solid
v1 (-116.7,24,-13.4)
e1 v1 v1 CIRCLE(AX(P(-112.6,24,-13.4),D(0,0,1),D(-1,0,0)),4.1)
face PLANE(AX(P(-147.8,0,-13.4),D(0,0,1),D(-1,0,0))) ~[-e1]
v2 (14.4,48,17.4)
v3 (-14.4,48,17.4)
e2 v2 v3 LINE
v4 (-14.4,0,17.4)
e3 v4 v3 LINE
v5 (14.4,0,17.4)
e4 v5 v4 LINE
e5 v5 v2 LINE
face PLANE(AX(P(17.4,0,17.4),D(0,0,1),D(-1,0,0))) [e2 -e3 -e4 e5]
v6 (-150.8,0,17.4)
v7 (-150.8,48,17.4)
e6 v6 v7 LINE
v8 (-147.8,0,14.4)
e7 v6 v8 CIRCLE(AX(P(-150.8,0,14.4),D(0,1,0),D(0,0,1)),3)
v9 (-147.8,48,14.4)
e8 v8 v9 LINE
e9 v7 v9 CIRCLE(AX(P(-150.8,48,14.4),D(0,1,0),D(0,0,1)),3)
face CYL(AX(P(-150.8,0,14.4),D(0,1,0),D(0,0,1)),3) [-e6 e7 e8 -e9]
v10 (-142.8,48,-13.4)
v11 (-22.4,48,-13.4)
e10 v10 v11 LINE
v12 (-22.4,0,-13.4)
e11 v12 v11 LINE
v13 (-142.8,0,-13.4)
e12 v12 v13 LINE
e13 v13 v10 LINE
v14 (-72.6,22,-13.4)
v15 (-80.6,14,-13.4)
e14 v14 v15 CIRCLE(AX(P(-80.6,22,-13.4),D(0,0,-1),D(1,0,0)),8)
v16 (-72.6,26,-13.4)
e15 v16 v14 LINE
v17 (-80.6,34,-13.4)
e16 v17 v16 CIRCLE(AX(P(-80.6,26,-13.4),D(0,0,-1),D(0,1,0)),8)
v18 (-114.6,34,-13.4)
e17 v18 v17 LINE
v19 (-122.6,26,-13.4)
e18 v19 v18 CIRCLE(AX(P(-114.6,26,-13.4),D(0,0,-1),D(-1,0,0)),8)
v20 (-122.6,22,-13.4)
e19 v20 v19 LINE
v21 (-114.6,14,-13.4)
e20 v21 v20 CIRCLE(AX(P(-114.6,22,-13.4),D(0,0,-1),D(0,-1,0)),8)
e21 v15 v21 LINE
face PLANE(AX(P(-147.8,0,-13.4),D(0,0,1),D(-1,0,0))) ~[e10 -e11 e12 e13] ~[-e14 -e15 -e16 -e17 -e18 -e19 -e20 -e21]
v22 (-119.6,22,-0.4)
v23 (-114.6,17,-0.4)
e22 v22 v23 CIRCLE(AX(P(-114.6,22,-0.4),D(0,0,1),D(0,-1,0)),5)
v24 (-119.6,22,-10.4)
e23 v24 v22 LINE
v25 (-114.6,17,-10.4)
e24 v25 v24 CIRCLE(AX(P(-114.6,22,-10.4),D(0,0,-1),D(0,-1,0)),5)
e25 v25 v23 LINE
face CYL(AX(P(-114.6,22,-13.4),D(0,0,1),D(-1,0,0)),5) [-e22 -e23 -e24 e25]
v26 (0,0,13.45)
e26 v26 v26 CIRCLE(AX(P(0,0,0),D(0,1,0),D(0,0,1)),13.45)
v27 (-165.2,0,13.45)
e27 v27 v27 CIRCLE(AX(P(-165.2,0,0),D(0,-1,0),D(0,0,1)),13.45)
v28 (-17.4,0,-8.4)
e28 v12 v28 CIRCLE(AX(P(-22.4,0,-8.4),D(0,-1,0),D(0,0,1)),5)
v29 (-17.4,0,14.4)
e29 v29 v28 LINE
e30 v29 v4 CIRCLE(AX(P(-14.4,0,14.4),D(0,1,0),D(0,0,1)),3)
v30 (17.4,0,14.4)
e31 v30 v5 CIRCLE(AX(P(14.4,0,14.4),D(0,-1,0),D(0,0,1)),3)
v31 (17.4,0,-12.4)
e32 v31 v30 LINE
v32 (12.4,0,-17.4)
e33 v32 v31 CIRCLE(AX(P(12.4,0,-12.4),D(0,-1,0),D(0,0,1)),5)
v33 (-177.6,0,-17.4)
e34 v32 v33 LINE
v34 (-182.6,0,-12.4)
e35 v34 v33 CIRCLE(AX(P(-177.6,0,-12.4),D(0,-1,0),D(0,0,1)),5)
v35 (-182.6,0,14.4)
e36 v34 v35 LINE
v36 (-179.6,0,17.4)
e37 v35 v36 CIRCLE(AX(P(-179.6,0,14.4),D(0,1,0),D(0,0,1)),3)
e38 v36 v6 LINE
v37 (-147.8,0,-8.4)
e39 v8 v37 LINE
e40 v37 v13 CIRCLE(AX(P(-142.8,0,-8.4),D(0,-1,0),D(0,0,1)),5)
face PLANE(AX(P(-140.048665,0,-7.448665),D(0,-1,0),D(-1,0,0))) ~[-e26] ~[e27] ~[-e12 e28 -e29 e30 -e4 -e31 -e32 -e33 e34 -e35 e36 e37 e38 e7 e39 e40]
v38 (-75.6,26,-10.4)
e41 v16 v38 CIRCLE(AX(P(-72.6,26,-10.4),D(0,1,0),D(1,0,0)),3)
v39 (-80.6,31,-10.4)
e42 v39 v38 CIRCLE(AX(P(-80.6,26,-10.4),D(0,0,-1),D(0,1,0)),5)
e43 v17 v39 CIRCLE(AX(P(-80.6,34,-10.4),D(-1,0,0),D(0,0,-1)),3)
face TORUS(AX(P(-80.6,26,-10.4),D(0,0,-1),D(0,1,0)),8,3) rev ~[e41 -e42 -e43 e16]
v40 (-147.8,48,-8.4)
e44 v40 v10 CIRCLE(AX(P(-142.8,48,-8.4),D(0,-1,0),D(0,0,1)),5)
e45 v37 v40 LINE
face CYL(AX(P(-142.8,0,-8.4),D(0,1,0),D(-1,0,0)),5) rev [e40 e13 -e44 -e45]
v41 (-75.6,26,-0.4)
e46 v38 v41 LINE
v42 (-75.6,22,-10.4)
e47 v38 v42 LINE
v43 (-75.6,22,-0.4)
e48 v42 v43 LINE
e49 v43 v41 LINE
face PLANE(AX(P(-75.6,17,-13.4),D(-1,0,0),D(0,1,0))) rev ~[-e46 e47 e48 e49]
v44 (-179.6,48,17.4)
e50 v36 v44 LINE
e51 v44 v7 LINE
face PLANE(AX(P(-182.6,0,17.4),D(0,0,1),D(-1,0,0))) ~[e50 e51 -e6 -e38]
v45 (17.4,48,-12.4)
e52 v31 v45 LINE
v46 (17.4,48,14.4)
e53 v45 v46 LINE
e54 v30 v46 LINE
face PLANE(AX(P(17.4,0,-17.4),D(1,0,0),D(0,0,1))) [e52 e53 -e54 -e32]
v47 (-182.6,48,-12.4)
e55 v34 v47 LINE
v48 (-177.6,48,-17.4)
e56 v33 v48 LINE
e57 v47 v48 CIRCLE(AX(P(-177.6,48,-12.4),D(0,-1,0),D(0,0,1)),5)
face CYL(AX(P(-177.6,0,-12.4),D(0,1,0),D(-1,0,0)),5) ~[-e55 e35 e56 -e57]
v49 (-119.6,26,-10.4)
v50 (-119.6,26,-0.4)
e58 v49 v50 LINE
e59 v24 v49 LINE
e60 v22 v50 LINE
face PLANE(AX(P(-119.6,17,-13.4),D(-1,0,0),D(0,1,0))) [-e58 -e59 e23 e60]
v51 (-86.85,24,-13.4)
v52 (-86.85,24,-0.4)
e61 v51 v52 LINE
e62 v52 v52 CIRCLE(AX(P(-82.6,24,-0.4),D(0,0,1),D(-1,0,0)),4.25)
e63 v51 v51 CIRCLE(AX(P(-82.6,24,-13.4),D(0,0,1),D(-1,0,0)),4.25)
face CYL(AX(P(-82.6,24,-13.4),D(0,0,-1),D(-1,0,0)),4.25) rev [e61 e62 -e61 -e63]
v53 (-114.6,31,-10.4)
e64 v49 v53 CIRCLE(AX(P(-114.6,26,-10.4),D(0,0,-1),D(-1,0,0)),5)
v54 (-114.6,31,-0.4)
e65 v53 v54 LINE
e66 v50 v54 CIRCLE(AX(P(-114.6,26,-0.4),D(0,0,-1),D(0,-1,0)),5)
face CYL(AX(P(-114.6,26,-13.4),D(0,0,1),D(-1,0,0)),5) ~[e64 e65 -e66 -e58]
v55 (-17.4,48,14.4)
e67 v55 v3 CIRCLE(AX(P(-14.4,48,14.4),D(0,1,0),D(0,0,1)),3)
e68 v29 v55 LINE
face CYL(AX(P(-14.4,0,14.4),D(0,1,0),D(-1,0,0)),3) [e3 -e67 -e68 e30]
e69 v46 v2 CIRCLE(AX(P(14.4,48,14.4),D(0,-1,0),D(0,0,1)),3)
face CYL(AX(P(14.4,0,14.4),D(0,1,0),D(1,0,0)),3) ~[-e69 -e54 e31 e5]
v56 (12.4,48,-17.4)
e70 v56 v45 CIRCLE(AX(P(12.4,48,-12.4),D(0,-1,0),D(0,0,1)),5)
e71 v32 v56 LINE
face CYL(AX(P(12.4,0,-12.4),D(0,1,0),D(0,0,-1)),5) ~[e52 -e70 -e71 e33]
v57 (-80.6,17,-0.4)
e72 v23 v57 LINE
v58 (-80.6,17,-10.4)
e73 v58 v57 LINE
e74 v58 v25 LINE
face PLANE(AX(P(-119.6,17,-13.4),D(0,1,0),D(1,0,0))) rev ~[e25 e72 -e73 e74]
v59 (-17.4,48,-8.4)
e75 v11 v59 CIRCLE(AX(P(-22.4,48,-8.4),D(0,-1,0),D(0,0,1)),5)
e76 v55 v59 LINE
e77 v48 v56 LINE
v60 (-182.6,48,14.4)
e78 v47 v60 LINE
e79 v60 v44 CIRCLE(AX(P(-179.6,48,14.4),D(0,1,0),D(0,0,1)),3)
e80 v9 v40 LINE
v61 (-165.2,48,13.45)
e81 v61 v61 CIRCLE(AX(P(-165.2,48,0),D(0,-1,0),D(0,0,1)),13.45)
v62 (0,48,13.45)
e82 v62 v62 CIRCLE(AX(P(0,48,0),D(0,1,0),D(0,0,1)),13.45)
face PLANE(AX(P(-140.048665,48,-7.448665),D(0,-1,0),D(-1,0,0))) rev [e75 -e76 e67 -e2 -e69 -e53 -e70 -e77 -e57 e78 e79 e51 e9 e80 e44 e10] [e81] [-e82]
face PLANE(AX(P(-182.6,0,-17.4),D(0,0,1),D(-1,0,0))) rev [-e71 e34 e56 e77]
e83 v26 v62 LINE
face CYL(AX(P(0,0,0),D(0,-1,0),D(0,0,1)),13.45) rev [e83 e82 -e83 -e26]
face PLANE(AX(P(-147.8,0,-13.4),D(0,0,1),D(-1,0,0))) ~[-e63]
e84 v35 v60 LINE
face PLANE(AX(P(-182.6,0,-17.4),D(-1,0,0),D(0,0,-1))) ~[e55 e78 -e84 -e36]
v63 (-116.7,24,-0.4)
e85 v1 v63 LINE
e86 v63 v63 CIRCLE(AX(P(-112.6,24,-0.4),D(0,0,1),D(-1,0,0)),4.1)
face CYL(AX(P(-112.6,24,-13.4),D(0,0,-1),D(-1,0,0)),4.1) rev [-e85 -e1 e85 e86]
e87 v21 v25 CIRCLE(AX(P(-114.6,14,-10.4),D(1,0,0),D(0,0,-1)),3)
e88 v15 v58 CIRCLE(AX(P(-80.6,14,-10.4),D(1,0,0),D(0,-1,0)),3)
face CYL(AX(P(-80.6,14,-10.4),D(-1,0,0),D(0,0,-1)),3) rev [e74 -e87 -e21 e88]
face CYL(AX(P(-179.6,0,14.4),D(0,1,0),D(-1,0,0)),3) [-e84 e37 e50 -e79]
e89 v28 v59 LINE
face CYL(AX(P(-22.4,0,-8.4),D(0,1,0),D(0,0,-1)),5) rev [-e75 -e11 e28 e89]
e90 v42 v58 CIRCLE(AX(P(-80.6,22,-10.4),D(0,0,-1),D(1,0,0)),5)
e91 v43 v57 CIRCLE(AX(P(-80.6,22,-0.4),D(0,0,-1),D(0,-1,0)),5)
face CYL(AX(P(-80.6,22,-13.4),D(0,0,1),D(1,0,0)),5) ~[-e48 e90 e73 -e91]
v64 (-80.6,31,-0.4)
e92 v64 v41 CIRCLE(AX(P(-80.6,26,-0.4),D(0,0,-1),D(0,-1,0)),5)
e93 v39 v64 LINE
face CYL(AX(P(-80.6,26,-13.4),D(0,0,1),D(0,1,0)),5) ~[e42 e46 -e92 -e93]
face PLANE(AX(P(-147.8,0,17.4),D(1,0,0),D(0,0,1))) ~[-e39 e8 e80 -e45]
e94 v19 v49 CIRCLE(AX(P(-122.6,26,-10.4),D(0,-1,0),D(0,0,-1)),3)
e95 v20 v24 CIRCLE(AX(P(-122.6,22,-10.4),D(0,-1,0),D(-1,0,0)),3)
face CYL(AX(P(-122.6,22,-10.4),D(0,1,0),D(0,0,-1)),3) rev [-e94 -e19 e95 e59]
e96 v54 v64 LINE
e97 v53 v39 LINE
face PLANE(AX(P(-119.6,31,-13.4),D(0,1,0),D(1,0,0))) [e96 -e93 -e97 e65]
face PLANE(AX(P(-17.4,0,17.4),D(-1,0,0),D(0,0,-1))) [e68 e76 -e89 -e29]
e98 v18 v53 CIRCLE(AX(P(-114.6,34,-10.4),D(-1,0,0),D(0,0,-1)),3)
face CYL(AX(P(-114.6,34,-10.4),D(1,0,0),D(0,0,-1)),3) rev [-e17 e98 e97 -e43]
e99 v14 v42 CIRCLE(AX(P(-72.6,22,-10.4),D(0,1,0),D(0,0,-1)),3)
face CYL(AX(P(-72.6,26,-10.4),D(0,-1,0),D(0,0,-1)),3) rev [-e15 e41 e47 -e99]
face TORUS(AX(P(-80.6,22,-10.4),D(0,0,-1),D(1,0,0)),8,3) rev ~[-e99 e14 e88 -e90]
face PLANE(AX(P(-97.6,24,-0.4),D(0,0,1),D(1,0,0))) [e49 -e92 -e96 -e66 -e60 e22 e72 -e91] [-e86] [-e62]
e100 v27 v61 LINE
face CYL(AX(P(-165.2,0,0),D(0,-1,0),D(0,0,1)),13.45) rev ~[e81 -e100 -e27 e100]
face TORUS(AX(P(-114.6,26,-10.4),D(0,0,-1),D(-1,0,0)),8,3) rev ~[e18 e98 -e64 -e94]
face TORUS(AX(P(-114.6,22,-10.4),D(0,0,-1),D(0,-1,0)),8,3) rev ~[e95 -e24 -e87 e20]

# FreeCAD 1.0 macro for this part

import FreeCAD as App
import Part
import Sketcher
from FreeCAD import Vector
Q = App.Units.Quantity


def edges_at(feature, points):
    """Names of the edges that pass closest to the given points."""
    edges = feature.Shape.Edges
    near = lambda p: min(range(len(edges)), key=lambda i: edges[i].distToShape(Part.Vertex(*p))[0])
    return sorted({f"Edge{near(p) + 1}" for p in points})

doc = App.newDocument("Part")
body = doc.addObject("PartDesign::Body", "Body")

sketch1 = doc.addObject("Sketcher::SketchObject", "Sketch")
body.addObject(sketch1)
sketch1.AttachmentSupport = (doc.XZ_Plane, [""])
sketch1.MapMode = "FlatFace"
sketch1.addGeometry([
    Part.LineSegment(Vector(17.4, -17.4, 0), Vector(-82.6, -17.4, 0)),
    Part.LineSegment(Vector(-82.6, -17.4, 0), Vector(-82.6, -13.4, 0)),
    Part.LineSegment(Vector(-82.6, -13.4, 0), Vector(-17.4, -13.4, 0)),
    Part.LineSegment(Vector(-17.4, -13.4, 0), Vector(-17.4, 17.4, 0)),
    Part.LineSegment(Vector(-17.4, 17.4, 0), Vector(17.4, 17.4, 0)),
    Part.LineSegment(Vector(17.4, 17.4, 0), Vector(17.4, -17.4, 0)),
    Part.Circle(Vector(0, 0, 0), Vector(0, 0, 1), 13.45),
], False)
sketch1.addConstraint([
    Sketcher.Constraint("Coincident", 0, 2, 1, 1),
    Sketcher.Constraint("Coincident", 1, 2, 2, 1),
    Sketcher.Constraint("Coincident", 2, 2, 3, 1),
    Sketcher.Constraint("Coincident", 3, 2, 4, 1),
    Sketcher.Constraint("Coincident", 4, 2, 5, 1),
    Sketcher.Constraint("Coincident", 5, 2, 0, 1),
    Sketcher.Constraint("Horizontal", 0),
    Sketcher.Constraint("Vertical", 1),
    Sketcher.Constraint("Horizontal", 2),
    Sketcher.Constraint("Vertical", 3),
    Sketcher.Constraint("Horizontal", 4),
    Sketcher.Constraint("Vertical", 5),
    Sketcher.Constraint("Coincident", 6, 3, -1, 1),
    Sketcher.Constraint("Symmetric", 3, 2, 5, 2, -1, 1),
    Sketcher.Constraint("Equal", 4, 5),
    Sketcher.Constraint("Diameter", 6, Q("26.9 mm")),
    Sketcher.Constraint("DistanceX", 0, 2, 0, 1, Q("100 mm")),
    Sketcher.Constraint("DistanceY", 1, 1, 1, 2, Q("4 mm")),
    Sketcher.Constraint("DistanceX", 2, 1, 2, 2, Q("65.2 mm")),
])
pad1 = doc.addObject("PartDesign::Pad", "Pad")
body.addObject(pad1)
pad1.Profile = sketch1
pad1.Length = 48
pad1.Reversed = True
doc.recompute()

datumplane = doc.addObject("PartDesign::Plane", "DatumPlane")
body.addObject(datumplane)
datumplane.AttachmentSupport = (doc.YZ_Plane, [""])
datumplane.MapMode = "FlatFace"
datumplane.AttachmentOffset = App.Placement(Vector(0, 0, -82.6), App.Rotation())
mirrored = doc.addObject("PartDesign::Mirrored", "Mirrored")
body.addObject(mirrored)
mirrored.Originals = [pad1]
mirrored.MirrorPlane = (datumplane, [""])
body.Tip = mirrored

sketch2 = doc.addObject("Sketcher::SketchObject", "Sketch001")
body.addObject(sketch2)
sketch2.AttachmentSupport = (doc.XY_Plane, [""])
sketch2.MapMode = "FlatFace"
sketch2.AttachmentOffset = App.Placement(Vector(0, 0, -13.4), App.Rotation())
sketch2.addGeometry([
    Part.LineSegment(Vector(-119.6, 31, 0), Vector(-119.6, 17, 0)),
    Part.LineSegment(Vector(-119.6, 17, 0), Vector(-75.6, 17, 0)),
    Part.LineSegment(Vector(-75.6, 17, 0), Vector(-75.6, 31, 0)),
    Part.LineSegment(Vector(-75.6, 31, 0), Vector(-119.6, 31, 0)),
    Part.Circle(Vector(-112.6, 24, 0), Vector(0, 0, 1), 4.1),
    Part.Circle(Vector(-82.6, 24, 0), Vector(0, 0, 1), 4.25),
], False)
sketch2.addConstraint([
    Sketcher.Constraint("Coincident", 0, 2, 1, 1),
    Sketcher.Constraint("Coincident", 1, 2, 2, 1),
    Sketcher.Constraint("Coincident", 2, 2, 3, 1),
    Sketcher.Constraint("Coincident", 3, 2, 0, 1),
    Sketcher.Constraint("Vertical", 0),
    Sketcher.Constraint("Horizontal", 1),
    Sketcher.Constraint("Vertical", 2),
    Sketcher.Constraint("Horizontal", 3),
    Sketcher.Constraint("Horizontal", 4, 3, 5, 3),
    Sketcher.Constraint("Diameter", 4, Q("8.2 mm")),
    Sketcher.Constraint("Diameter", 5, Q("8.5 mm")),
    Sketcher.Constraint("DistanceX", 1, 1, 1, 2, Q("44 mm")),
    Sketcher.Constraint("DistanceY", 0, 2, 0, 1, Q("14 mm")),
    Sketcher.Constraint("DistanceY", -1, 1, 4, 3, Q("24 mm")),
    Sketcher.Constraint("DistanceY", -1, 1, 0, 2, Q("17 mm")),
    Sketcher.Constraint("DistanceX", 4, 3, 5, 3, Q("30 mm")),
    Sketcher.Constraint("DistanceX", 0, 2, 4, 3, Q("7 mm")),
    Sketcher.Constraint("DistanceX", 4, 3, -1, 1, Q("112.6 mm")),
])
pad2 = doc.addObject("PartDesign::Pad", "Pad001")
body.addObject(pad2)
pad2.Profile = sketch2
pad2.Length = 13
doc.recompute()

fillet = doc.addObject("PartDesign::Fillet", "Fillet")
body.addObject(fillet)
fillet.Base = (pad2, edges_at(pad2, [
    (17.4, 24, 17.4),
    (-17.4, 24, 17.4),
    (-182.6, 24, 17.4),
    (-147.8, 24, 17.4),
]))
fillet.Radius = 3
doc.recompute()

fillet2 = doc.addObject("PartDesign::Fillet", "Fillet001")
body.addObject(fillet2)
fillet2.Base = (fillet, edges_at(fillet, [
    (-17.4, 24, -13.4),
    (17.4, 24, -17.4),
    (-182.6, 24, -17.4),
    (-147.8, 24, -13.4),
]))
fillet2.Radius = 5
doc.recompute()

fillet3 = doc.addObject("PartDesign::Fillet", "Fillet002")
body.addObject(fillet3)
fillet3.Base = (fillet2, edges_at(fillet2, [
    (-75.6, 17, -6.9),
    (-75.6, 31, -6.9),
    (-119.6, 31, -6.9),
    (-119.6, 17, -6.9),
]))
fillet3.Radius = 5
doc.recompute()

fillet4 = doc.addObject("PartDesign::Fillet", "Fillet003")
body.addObject(fillet4)
fillet4.Base = (fillet3, edges_at(fillet3, [
    (-97.6, 31, -13.4),
    (-75.6, 24, -13.4),
    (-97.6, 17, -13.4),
    (-119.6, 24, -13.4),
    (-77.064, 29.536, -13.4),
    (-77.064, 18.464, -13.4),
    (-118.136, 29.536, -13.4),
    (-118.136, 18.464, -13.4),
]))
fillet4.Radius = 3

doc.recompute()
